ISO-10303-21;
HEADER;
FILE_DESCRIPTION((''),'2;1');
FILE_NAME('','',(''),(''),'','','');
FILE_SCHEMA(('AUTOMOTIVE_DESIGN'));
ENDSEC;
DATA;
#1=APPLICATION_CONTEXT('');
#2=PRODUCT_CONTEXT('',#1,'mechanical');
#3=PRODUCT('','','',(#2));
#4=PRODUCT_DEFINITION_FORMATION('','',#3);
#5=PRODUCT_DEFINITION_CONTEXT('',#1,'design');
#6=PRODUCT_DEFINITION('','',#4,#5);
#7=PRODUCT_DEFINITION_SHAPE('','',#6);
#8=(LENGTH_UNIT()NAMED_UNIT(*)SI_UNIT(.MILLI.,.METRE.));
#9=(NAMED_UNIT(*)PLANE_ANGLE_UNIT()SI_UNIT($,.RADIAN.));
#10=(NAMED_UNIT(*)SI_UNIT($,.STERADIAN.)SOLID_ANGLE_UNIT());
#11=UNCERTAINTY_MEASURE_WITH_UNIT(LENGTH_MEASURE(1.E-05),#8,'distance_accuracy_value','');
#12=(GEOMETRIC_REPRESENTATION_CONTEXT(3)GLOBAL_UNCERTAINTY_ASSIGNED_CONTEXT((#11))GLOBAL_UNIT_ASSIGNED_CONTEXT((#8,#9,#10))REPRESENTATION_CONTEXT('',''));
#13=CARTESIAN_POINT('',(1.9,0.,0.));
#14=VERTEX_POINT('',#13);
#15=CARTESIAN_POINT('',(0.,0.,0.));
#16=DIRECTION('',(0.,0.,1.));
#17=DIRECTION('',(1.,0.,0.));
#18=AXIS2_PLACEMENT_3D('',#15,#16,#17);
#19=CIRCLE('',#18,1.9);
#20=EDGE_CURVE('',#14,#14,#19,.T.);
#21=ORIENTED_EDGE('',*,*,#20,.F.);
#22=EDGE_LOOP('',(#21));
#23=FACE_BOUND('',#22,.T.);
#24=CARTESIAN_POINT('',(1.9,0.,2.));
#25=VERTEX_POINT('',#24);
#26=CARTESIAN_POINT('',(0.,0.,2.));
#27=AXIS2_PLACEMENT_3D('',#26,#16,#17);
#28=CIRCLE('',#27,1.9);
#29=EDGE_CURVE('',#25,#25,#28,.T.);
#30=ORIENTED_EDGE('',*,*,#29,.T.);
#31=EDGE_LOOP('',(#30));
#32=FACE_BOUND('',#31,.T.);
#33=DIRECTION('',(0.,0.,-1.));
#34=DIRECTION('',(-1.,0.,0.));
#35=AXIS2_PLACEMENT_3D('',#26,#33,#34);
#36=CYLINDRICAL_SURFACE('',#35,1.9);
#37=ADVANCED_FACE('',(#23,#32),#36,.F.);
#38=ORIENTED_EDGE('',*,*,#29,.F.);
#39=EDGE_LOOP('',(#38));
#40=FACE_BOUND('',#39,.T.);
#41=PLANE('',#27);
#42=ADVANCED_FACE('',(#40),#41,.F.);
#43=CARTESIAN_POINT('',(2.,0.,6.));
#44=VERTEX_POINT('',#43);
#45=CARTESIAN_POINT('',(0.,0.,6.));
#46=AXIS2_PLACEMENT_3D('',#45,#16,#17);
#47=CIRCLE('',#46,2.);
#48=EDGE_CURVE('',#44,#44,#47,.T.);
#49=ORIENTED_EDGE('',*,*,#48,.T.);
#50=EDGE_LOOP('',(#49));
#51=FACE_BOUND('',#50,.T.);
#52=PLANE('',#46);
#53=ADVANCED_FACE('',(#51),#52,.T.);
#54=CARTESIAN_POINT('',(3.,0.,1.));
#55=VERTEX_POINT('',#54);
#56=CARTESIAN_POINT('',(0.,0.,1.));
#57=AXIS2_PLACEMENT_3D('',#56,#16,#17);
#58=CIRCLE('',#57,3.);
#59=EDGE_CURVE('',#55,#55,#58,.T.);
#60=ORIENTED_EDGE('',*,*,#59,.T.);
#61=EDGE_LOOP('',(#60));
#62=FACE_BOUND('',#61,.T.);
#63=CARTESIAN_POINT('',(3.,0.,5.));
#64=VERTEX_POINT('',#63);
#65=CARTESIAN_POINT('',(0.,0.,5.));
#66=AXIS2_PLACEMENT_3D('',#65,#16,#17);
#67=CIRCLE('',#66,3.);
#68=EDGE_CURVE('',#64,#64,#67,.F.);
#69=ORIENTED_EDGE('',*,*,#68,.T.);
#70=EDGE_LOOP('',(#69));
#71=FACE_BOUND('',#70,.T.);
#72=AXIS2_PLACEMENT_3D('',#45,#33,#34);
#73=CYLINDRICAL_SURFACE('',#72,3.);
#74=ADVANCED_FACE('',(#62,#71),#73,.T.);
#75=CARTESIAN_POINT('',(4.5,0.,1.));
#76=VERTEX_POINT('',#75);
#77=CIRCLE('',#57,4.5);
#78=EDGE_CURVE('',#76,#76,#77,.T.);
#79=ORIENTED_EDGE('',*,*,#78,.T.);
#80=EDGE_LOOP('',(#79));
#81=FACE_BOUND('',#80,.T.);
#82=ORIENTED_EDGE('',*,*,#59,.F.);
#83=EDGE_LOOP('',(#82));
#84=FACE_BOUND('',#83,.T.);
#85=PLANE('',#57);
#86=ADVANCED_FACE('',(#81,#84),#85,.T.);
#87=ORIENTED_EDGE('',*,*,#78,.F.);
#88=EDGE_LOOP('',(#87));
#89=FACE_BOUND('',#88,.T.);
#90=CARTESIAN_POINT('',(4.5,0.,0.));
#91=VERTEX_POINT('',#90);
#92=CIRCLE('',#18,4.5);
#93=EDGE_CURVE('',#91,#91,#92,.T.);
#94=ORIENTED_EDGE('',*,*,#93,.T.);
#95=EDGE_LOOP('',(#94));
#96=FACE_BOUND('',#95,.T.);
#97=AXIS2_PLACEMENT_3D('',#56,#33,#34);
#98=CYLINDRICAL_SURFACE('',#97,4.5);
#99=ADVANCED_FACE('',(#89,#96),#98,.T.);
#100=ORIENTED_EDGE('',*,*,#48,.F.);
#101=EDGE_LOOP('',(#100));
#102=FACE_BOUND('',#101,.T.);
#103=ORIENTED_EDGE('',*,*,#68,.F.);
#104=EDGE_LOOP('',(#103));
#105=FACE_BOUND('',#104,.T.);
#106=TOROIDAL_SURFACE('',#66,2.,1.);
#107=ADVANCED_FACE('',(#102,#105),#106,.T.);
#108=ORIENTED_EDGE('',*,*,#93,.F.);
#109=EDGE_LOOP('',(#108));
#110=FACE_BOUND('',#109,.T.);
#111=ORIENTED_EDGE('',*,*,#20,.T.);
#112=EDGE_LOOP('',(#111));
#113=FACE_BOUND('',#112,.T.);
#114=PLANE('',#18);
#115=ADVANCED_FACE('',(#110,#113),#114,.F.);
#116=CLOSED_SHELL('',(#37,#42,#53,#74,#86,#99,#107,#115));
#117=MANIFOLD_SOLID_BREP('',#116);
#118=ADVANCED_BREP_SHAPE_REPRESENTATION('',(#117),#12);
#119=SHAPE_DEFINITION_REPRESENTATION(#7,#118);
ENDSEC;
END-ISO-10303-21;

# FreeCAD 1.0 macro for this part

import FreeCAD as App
import Part
import Sketcher
from FreeCAD import Vector


def edges_at(feature, points):
    """Names of the edges that pass closest to the given points."""
    edges = feature.Shape.Edges
    near = lambda p: min(range(len(edges)), key=lambda i: edges[i].distToShape(Part.Vertex(*p))[0])
    return sorted({f"Edge{near(p) + 1}" for p in points})

doc = App.newDocument("Part")
body = doc.addObject("PartDesign::Body", "Body")

sketch1 = doc.addObject("Sketcher::SketchObject", "Sketch")
body.addObject(sketch1)
sketch1.AttachmentSupport = (doc.XY_Plane, [""])
sketch1.MapMode = "FlatFace"
sketch1.addGeometry(Part.Circle(Vector(0, 0, 0), Vector(0, 0, 1), 3), False)
sketch1.addConstraint([
    Sketcher.Constraint("Coincident", 0, 3, -1, 1),
    Sketcher.Constraint("Diameter", 0, 6.0),
])
pad1 = doc.addObject("PartDesign::Pad", "Pad")
body.addObject(pad1)
pad1.Profile = sketch1
pad1.Length = 6

sketch2 = doc.addObject("Sketcher::SketchObject", "Sketch001")
body.addObject(sketch2)
sketch2.AttachmentSupport = (doc.XY_Plane, [""])
sketch2.MapMode = "FlatFace"
sketch2.addGeometry(Part.Circle(Vector(0, 0, 0), Vector(0, 0, 1), 1.9), False)
sketch2.addConstraint([
    Sketcher.Constraint("Coincident", 0, 3, -1, 1),
    Sketcher.Constraint("Diameter", 0, 3.8),
])
pocket1 = doc.addObject("PartDesign::Pocket", "Pocket")
body.addObject(pocket1)
pocket1.Profile = sketch2
pocket1.Length = 2
pocket1.Reversed = True

sketch3 = doc.addObject("Sketcher::SketchObject", "Sketch002")
body.addObject(sketch3)
sketch3.AttachmentSupport = (doc.XY_Plane, [""])
sketch3.MapMode = "FlatFace"
sketch3.addGeometry([
    Part.Circle(Vector(0, 0, 0), Vector(0, 0, 1), 4.5),
    Part.Circle(Vector(0, 0, 0), Vector(0, 0, 1), 3),
], False)
sketch3.addConstraint([
    Sketcher.Constraint("Coincident", 0, 3, -1, 1),
    Sketcher.Constraint("Coincident", 1, 3, -1, 1),
    Sketcher.Constraint("Diameter", 0, 9.0),
    Sketcher.Constraint("Diameter", 1, 6.0),
])
pad2 = doc.addObject("PartDesign::Pad", "Pad001")
body.addObject(pad2)
pad2.Profile = sketch3
pad2.Length = 1
doc.recompute()

fillet = doc.addObject("PartDesign::Fillet", "Fillet")
body.addObject(fillet)
fillet.Base = (pad2, edges_at(pad2, [(-3, 0, 6)]))
fillet.Radius = 1

doc.recompute()
